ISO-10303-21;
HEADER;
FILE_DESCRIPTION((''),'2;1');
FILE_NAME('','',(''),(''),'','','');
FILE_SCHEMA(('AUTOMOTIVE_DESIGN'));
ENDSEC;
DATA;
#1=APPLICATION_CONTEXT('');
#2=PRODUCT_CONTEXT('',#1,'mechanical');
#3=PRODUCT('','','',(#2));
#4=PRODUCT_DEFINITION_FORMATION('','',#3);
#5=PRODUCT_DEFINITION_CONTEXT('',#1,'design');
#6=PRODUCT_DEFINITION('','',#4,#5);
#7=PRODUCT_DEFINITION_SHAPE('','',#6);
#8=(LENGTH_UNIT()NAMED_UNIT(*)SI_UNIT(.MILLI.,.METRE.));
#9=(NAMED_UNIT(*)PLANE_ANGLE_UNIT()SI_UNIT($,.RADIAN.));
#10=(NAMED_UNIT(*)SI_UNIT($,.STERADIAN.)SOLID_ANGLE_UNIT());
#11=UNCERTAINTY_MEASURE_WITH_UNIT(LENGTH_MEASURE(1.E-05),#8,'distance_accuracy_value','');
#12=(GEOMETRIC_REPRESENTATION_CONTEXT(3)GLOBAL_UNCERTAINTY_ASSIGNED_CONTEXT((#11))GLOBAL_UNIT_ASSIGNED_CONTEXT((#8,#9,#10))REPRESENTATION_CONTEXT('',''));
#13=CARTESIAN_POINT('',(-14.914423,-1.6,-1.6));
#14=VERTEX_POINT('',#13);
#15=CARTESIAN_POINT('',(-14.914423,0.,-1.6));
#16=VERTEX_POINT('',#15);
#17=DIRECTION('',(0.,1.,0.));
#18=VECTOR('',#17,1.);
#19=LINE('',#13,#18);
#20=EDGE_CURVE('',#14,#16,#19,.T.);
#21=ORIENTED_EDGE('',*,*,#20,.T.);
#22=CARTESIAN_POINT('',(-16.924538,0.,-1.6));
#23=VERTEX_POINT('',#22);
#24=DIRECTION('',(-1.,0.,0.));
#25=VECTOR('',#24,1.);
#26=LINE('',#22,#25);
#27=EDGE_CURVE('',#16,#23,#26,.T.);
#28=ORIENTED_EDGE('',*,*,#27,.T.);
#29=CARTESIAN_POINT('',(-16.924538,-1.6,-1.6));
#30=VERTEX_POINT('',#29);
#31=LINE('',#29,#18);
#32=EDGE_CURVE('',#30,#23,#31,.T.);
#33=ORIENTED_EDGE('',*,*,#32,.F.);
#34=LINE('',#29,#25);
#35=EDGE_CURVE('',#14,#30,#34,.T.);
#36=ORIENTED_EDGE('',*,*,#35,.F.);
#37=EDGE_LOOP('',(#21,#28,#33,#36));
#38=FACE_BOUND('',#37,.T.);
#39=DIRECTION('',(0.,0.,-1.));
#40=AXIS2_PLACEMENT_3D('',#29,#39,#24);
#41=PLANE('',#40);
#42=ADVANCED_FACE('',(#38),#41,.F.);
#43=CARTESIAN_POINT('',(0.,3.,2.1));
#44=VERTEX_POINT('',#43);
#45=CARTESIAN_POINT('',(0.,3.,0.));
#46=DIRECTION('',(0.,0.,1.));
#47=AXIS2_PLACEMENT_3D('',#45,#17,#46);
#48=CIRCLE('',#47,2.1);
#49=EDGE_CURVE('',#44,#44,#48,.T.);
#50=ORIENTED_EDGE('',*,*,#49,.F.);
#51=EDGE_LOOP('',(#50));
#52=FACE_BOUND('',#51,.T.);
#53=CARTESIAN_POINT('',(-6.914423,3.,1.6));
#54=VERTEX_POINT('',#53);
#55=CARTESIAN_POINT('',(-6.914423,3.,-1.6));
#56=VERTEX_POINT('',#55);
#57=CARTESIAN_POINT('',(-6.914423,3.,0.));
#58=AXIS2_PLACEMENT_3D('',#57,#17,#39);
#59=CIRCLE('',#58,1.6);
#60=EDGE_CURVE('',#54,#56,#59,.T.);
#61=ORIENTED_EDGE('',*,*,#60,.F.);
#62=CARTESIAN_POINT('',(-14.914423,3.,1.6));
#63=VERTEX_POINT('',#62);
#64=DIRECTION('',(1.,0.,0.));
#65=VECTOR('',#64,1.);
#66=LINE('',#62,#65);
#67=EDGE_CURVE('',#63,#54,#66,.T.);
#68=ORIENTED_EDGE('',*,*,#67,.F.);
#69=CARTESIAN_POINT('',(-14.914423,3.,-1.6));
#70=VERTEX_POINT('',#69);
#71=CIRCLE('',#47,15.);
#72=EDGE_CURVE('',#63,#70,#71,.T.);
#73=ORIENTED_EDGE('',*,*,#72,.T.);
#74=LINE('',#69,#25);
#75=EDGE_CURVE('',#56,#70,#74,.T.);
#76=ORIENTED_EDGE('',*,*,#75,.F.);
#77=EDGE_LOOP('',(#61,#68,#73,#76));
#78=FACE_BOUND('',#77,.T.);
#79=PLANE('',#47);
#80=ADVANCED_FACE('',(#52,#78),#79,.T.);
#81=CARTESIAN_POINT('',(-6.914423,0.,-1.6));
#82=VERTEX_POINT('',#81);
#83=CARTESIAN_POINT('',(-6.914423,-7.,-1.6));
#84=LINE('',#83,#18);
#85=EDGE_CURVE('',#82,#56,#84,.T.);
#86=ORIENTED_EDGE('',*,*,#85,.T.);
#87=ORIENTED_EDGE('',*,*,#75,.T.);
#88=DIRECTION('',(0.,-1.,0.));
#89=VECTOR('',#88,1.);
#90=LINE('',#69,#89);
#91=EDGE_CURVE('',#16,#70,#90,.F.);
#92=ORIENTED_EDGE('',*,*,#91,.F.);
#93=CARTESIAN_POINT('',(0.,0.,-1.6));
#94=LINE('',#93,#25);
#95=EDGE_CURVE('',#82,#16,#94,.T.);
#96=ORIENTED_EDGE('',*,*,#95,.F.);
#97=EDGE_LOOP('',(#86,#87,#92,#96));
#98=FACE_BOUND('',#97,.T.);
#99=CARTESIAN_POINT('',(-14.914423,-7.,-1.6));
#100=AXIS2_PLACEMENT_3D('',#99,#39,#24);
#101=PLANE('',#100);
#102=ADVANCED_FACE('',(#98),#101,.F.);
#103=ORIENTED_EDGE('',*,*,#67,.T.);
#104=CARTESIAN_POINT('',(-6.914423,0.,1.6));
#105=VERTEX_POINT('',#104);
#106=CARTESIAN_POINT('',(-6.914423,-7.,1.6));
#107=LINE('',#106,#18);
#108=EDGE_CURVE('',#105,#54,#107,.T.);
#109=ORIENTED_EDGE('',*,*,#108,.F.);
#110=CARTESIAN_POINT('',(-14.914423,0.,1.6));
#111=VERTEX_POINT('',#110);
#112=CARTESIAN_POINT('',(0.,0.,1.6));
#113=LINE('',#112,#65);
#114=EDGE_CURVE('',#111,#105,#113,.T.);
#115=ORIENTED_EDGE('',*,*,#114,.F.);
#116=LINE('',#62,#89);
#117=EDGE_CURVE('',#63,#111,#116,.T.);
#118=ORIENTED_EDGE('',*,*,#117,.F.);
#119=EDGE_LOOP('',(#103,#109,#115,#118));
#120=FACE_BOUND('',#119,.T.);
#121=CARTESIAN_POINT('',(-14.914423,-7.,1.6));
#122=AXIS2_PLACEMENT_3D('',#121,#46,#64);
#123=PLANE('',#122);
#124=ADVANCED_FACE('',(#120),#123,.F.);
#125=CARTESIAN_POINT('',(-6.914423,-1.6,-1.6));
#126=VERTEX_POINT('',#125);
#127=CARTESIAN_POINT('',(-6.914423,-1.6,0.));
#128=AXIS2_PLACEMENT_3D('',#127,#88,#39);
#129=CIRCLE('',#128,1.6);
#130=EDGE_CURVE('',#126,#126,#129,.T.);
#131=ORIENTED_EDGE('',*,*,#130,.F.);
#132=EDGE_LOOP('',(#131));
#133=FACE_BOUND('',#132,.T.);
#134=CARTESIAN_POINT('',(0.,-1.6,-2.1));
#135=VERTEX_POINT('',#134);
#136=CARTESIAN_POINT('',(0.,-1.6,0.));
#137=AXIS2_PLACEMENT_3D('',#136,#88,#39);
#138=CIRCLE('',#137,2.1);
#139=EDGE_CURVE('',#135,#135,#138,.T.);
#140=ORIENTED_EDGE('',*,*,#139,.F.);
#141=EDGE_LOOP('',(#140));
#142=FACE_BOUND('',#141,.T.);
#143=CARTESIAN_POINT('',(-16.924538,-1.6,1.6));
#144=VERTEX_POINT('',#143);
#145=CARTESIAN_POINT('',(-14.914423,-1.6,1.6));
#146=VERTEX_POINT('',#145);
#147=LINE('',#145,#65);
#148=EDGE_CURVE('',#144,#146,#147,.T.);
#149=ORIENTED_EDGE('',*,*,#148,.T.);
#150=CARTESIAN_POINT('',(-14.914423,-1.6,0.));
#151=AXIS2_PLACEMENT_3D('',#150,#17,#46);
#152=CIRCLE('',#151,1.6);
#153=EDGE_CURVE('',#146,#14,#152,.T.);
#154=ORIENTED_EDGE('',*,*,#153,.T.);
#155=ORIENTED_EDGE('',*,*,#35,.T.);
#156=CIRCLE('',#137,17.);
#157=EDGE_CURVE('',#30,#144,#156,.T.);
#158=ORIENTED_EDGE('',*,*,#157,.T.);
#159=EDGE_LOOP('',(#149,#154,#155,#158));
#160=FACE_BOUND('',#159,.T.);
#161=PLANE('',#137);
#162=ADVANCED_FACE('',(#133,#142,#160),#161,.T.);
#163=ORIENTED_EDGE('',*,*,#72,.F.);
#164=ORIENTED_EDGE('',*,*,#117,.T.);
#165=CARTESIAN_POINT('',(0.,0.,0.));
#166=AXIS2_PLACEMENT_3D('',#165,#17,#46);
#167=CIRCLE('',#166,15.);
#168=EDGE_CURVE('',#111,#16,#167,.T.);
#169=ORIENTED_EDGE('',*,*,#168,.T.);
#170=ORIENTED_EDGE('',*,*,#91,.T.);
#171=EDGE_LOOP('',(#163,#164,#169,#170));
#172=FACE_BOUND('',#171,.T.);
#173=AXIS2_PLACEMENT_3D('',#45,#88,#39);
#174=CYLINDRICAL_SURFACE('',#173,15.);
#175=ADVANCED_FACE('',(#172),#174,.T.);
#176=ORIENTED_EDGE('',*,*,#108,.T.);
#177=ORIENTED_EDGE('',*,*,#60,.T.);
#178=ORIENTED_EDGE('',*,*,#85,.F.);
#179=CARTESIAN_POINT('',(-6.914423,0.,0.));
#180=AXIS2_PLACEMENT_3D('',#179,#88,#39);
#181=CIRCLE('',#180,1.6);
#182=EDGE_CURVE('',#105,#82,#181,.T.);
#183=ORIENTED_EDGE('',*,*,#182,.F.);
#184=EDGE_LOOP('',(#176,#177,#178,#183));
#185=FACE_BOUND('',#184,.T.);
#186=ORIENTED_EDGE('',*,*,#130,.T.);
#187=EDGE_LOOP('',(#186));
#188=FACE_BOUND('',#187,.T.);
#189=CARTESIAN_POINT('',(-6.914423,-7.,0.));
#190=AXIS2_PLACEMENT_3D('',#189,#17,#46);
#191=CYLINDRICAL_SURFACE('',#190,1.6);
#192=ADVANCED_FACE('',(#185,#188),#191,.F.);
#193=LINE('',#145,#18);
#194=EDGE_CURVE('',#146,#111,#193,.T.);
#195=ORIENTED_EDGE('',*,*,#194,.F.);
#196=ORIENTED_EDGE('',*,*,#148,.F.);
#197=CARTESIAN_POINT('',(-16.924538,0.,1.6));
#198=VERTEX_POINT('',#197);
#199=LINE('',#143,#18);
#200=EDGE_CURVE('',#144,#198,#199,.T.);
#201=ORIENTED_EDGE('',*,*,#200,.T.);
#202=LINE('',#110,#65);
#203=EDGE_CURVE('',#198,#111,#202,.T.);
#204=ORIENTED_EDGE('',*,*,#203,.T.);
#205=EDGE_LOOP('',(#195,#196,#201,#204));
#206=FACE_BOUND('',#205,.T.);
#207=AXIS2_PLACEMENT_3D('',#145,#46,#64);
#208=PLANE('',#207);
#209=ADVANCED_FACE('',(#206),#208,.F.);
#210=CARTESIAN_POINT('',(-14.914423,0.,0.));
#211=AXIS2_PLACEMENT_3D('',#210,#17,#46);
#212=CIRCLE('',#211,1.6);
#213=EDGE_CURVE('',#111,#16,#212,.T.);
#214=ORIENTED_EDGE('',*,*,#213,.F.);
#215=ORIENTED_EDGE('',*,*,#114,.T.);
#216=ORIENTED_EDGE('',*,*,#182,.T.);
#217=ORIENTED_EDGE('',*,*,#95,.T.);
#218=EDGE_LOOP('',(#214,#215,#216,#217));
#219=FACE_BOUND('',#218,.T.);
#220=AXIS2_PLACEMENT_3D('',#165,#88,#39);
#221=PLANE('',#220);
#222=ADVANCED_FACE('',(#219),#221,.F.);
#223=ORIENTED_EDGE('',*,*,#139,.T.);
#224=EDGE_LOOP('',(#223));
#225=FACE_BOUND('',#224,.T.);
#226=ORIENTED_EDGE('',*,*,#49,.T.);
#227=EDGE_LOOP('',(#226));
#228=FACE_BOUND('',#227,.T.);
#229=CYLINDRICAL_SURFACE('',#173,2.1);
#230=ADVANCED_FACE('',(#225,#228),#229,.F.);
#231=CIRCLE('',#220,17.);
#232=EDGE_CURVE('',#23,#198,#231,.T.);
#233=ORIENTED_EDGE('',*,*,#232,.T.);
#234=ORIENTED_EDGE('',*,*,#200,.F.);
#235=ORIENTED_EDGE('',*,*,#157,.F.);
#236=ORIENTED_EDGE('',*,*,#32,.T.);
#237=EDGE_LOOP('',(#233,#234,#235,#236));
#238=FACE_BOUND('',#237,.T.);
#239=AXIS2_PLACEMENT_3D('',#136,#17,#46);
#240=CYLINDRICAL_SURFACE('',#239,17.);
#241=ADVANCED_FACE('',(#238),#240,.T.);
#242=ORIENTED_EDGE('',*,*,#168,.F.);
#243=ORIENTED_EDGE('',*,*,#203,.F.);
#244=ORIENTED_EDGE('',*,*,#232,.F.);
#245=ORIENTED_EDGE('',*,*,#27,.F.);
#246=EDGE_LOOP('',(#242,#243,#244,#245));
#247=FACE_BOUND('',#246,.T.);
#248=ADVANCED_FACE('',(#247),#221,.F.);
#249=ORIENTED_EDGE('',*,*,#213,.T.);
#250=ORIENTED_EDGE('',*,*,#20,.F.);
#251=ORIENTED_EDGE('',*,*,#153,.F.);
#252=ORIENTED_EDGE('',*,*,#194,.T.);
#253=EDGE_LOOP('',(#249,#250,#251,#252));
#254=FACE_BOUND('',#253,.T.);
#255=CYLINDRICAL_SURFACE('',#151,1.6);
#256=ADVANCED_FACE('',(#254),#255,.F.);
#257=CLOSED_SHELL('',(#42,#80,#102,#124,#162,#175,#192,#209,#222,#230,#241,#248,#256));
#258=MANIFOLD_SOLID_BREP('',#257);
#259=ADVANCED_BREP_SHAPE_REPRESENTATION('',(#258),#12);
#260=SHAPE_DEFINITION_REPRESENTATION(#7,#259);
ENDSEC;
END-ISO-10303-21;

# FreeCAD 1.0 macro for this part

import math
import FreeCAD as App
import Part
import Sketcher
from FreeCAD import Vector
Q = App.Units.Quantity

doc = App.newDocument("Part")
body = doc.addObject("PartDesign::Body", "Body")

# Sketch on XZ plane
sketch1 = body.newObject("Sketcher::SketchObject", "Sketch")
sketch1.AttachmentSupport = (doc.getObject("XZ_Plane"), [""])
sketch1.MapMode = "FlatFace"
sketch1.addGeometry(Part.Circle(Vector(0, 0, 0), Vector(0, 0, 1), 15), False)
sketch1.addGeometry(Part.Circle(Vector(0, 0, 0), Vector(0, 0, 1), 2.1), False)
sketch1.addConstraint(Sketcher.Constraint("Coincident", 0, 3, -1, 1))
sketch1.addConstraint(Sketcher.Constraint("Coincident", 1, 3, -1, 1))
sketch1.addConstraint(Sketcher.Constraint("Diameter", 0, Q("30 mm")))
sketch1.addConstraint(Sketcher.Constraint("Diameter", 1, Q("4.2 mm")))
pad1 = body.newObject("PartDesign::Pad", "Pad")
pad1.Profile = sketch1
pad1.Length = 3
pad1.Reversed = True

# Sketch on XZ plane
sketch2 = body.newObject("Sketcher::SketchObject", "Sketch001")
sketch2.AttachmentSupport = (doc.getObject("XZ_Plane"), [""])
sketch2.MapMode = "FlatFace"
sketch2.AttachmentOffset = App.Placement(Vector(0, 0, -3), App.Rotation())
sketch2.addGeometry(Part.LineSegment(Vector(-6.9, -1.6, 0), Vector(-14.9, -1.6, 0)), False)
sketch2.addGeometry(Part.ArcOfCircle(Part.Circle(Vector(-14.9, 0, 0), Vector(0, 0, 1), 1.6), math.radians(90), math.radians(270)), False)
sketch2.addGeometry(Part.LineSegment(Vector(-14.9, 1.6, 0), Vector(-6.9, 1.6, 0)), False)
sketch2.addGeometry(Part.ArcOfCircle(Part.Circle(Vector(-6.9, 0, 0), Vector(0, 0, 1), 1.6), math.radians(-90), math.radians(90)), False)
sketch2.addConstraint(Sketcher.Constraint("Tangent", 0, 2, 1, 2))
sketch2.addConstraint(Sketcher.Constraint("Tangent", 1, 1, 2, 1))
sketch2.addConstraint(Sketcher.Constraint("Tangent", 2, 2, 3, 2))
sketch2.addConstraint(Sketcher.Constraint("Tangent", 3, 1, 0, 1))
sketch2.addConstraint(Sketcher.Constraint("Horizontal", 0))
sketch2.addConstraint(Sketcher.Constraint("Horizontal", 2))
sketch2.addConstraint(Sketcher.Constraint("PointOnObject", 1, 3, -1))
sketch2.addConstraint(Sketcher.Constraint("Radius", 1, Q("1.6 mm")))
sketch2.addConstraint(Sketcher.Constraint("DistanceX", 0, 2, 0, 1, Q("8 mm")))
sketch2.addConstraint(Sketcher.Constraint("DistanceX", 1, 3, -1, 1, Q("14.914423 mm")))
pocket1 = body.newObject("PartDesign::Pocket", "Pocket")
pocket1.Profile = sketch2
pocket1.Length = 10
pocket1.Reversed = True

# Sketch on XZ plane
sketch3 = body.newObject("Sketcher::SketchObject", "Sketch002")
sketch3.AttachmentSupport = (doc.getObject("XZ_Plane"), [""])
sketch3.MapMode = "FlatFace"
sketch3.addGeometry(Part.LineSegment(Vector(-14.9, -1.6, 0), Vector(-16.9, -1.6, 0)), False)
sketch3.addGeometry(Part.ArcOfCircle(Part.Circle(Vector(0, 0, 0), Vector(0, 0, 1), 17), math.radians(-175), math.radians(175)), False)
sketch3.addGeometry(Part.LineSegment(Vector(-16.9, 1.6, 0), Vector(-14.9, 1.6, 0)), False)
sketch3.addGeometry(Part.ArcOfCircle(Part.Circle(Vector(-14.9, 0, 0), Vector(0, 0, 1), 1.6), math.radians(-90), math.radians(90)), False)
sketch3.addGeometry(Part.Circle(Vector(0, 0, 0), Vector(0, 0, 1), 2.1), False)
sketch3.addGeometry(Part.Circle(Vector(-6.9, 0, 0), Vector(0, 0, 1), 1.6), False)
sketch3.addConstraint(Sketcher.Constraint("Coincident", 0, 2, 1, 1))
sketch3.addConstraint(Sketcher.Constraint("Coincident", 1, 2, 2, 1))
sketch3.addConstraint(Sketcher.Constraint("Tangent", 2, 2, 3, 2))
sketch3.addConstraint(Sketcher.Constraint("Tangent", 3, 1, 0, 1))
sketch3.addConstraint(Sketcher.Constraint("Horizontal", 0))
sketch3.addConstraint(Sketcher.Constraint("Horizontal", 2))
sketch3.addConstraint(Sketcher.Constraint("Coincident", 1, 3, -1, 1))
sketch3.addConstraint(Sketcher.Constraint("Coincident", 4, 3, -1, 1))
sketch3.addConstraint(Sketcher.Constraint("Equal", 3, 5))
sketch3.addConstraint(Sketcher.Constraint("PointOnObject", 3, 3, -1))
sketch3.addConstraint(Sketcher.Constraint("PointOnObject", 5, 3, -1))
sketch3.addConstraint(Sketcher.Constraint("Radius", 1, Q("17 mm")))
sketch3.addConstraint(Sketcher.Constraint("Diameter", 4, Q("4.2 mm")))
sketch3.addConstraint(Sketcher.Constraint("Diameter", 5, Q("3.2 mm")))
sketch3.addConstraint(Sketcher.Constraint("DistanceX", 3, 3, 5, 3, Q("8 mm")))
sketch3.addConstraint(Sketcher.Constraint("DistanceX", 0, 2, 0, 1, Q("2.010116 mm")))
pad2 = body.newObject("PartDesign::Pad", "Pad001")
pad2.Profile = sketch3
pad2.Length = 1.6

doc.recompute()
